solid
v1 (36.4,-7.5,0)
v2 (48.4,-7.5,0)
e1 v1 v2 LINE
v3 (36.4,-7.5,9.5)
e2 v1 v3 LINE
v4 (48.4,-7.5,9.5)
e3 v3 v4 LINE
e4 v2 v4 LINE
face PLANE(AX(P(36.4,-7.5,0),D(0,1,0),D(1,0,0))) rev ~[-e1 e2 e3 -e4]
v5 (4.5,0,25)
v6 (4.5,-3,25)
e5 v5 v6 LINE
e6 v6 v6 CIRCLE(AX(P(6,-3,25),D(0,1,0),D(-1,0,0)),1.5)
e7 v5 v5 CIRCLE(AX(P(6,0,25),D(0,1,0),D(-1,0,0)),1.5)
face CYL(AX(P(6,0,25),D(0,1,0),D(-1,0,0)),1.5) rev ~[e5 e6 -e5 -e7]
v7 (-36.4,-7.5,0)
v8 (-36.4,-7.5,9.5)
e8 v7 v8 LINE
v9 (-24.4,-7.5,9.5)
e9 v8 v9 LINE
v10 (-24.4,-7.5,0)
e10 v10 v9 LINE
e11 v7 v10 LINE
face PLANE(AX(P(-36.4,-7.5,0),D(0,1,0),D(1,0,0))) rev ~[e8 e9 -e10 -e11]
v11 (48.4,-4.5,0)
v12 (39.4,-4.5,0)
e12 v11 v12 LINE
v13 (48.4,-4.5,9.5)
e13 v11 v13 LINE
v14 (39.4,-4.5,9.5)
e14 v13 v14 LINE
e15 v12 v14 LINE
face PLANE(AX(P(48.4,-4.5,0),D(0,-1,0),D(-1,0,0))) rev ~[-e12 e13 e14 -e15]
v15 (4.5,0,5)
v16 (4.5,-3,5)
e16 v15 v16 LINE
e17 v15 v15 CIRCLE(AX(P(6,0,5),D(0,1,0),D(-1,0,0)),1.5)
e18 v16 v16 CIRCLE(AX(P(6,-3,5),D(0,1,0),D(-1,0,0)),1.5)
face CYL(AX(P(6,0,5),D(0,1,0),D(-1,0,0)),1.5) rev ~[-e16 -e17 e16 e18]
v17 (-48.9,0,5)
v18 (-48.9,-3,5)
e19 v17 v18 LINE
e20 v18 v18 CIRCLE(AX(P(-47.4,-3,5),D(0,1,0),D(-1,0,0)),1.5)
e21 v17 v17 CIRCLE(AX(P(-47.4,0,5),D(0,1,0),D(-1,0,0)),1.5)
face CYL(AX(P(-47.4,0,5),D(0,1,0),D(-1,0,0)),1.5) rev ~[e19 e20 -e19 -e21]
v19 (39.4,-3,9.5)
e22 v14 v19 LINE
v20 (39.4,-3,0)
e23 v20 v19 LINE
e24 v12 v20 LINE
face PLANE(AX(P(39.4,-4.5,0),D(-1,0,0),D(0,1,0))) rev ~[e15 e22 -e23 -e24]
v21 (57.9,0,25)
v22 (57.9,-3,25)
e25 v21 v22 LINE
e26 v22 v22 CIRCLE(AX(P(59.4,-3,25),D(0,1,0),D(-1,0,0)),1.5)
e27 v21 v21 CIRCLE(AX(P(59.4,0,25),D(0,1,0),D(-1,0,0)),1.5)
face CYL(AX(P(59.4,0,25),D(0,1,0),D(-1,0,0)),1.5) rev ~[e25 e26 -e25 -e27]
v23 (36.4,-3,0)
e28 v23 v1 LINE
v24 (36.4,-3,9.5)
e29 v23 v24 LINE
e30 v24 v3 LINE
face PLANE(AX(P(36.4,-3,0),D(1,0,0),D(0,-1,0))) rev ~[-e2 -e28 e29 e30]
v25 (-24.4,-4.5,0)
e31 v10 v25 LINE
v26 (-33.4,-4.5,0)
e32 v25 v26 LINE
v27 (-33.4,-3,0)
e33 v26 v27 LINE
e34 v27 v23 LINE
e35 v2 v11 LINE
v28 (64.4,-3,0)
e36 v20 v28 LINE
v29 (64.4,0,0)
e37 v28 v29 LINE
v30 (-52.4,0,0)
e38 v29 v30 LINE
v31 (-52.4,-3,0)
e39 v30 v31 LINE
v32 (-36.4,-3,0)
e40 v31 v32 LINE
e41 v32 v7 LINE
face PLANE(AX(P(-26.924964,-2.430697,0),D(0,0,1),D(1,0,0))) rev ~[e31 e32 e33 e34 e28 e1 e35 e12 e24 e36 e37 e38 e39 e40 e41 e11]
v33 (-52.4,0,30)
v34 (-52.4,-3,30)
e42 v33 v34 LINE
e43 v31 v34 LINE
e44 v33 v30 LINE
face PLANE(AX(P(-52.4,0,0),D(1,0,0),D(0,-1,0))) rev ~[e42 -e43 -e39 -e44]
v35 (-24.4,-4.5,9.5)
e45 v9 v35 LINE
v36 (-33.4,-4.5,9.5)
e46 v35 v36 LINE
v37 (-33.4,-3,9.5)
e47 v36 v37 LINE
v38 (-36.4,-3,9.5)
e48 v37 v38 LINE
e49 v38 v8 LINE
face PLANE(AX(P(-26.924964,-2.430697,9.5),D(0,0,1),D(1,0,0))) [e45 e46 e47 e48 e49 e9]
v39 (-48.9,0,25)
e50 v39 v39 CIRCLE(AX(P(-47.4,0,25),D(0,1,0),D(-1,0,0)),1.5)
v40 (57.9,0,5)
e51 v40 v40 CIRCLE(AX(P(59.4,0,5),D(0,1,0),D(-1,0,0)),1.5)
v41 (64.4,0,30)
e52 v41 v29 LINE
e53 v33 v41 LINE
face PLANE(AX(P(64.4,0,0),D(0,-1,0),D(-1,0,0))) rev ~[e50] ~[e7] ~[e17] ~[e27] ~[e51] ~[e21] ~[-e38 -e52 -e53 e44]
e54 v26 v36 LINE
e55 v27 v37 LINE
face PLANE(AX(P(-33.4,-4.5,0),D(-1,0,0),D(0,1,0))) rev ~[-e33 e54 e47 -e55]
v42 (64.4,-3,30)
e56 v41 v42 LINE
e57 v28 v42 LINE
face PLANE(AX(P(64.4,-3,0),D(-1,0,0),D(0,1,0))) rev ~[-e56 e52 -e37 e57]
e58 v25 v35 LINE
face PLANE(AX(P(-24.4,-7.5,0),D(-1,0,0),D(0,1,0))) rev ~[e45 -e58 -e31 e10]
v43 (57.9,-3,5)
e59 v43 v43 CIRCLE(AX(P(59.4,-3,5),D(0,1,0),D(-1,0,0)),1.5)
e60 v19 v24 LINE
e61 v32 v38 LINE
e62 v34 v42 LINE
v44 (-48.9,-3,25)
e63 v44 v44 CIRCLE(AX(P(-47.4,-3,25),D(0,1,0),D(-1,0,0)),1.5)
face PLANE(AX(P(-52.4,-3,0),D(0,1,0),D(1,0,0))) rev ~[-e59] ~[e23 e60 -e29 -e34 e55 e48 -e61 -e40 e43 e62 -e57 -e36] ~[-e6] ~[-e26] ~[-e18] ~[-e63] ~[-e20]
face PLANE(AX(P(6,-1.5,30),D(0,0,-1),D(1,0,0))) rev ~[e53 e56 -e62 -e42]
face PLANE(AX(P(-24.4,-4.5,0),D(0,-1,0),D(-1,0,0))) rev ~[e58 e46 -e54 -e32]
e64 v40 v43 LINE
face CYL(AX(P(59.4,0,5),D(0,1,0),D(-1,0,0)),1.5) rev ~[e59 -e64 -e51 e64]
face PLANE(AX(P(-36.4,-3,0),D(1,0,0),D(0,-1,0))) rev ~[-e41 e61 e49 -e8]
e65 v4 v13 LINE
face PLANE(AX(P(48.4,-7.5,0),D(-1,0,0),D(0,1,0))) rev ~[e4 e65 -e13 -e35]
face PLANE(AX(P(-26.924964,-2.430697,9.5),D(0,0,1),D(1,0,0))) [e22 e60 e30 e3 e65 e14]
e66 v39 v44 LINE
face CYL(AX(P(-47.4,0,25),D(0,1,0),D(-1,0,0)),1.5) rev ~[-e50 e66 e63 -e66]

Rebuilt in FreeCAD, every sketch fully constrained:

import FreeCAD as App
import Part
import Sketcher
from FreeCAD import Vector

doc = App.newDocument("Part")
params = doc.addObject("Spreadsheet::Sheet", "Params")
for row, (alias, value) in enumerate([
    ("sketch1_width", "16 mm"),
    ("sketch1_width2", "12 mm"),
    ("sketch1_width3", "9 mm"),
    ("sketch1_width4", "25 mm"),
    ("sketch1_height", "3 mm"),
    ("pad1_length", "9.5 mm"),
    ("sketch2_height", "3 mm"),
    ("sketch2_width", "116.8 mm"),
    ("pad2_length", "30 mm"),
    ("sketch3_diameter", "3 mm"),
    ("pocket1_length", "25 mm"),
], start=1):
    params.set(f"A{row}", alias)
    params.set(f"B{row}", "=" + value)
    params.setAlias(f"B{row}", alias)

body = doc.addObject("PartDesign::Body", "Body")

# Sketch on XY plane
sketch1 = body.newObject("Sketcher::SketchObject", "Sketch")
sketch1.AttachmentSupport = (doc.getObject("XY_Plane"), [""])
sketch1.MapMode = "FlatFace"
sketch1.addGeometry([
    Part.LineSegment(Vector(-52.4, 0, 0), Vector(-52.4, -3, 0)),  # 0
    Part.LineSegment(Vector(-52.4, -3, 0), Vector(-36.4, -3, 0)),  # 1
    Part.LineSegment(Vector(-36.4, -3, 0), Vector(-36.4, -7.5, 0)),  # 2
    Part.LineSegment(Vector(-36.4, -7.5, 0), Vector(-24.4, -7.5, 0)),  # 3
    Part.LineSegment(Vector(-24.4, -7.5, 0), Vector(-24.4, -4.5, 0)),  # 4
    Part.LineSegment(Vector(-24.4, -4.5, 0), Vector(-33.4, -4.5, 0)),  # 5
    Part.LineSegment(Vector(-33.4, -4.5, 0), Vector(-33.4, -3, 0)),  # 6
    Part.LineSegment(Vector(-33.4, -3, 0), Vector(36.4, -3, 0)),  # 7
    Part.LineSegment(Vector(36.4, -3, 0), Vector(36.4, -7.5, 0)),  # 8
    Part.LineSegment(Vector(36.4, -7.5, 0), Vector(48.4, -7.5, 0)),  # 9
    Part.LineSegment(Vector(48.4, -7.5, 0), Vector(48.4, -4.5, 0)),  # 10
    Part.LineSegment(Vector(48.4, -4.5, 0), Vector(39.4, -4.5, 0)),  # 11
    Part.LineSegment(Vector(39.4, -4.5, 0), Vector(39.4, -3, 0)),  # 12
    Part.LineSegment(Vector(39.4, -3, 0), Vector(64.4, -3, 0)),  # 13
    Part.LineSegment(Vector(64.4, -3, 0), Vector(64.4, 0, 0)),  # 14
    Part.LineSegment(Vector(64.4, 0, 0), Vector(-52.4, 0, 0)),  # 15
], False)
sketch1.addConstraint([
    Sketcher.Constraint("Coincident", 0, 2, 1, 1),
    Sketcher.Constraint("Coincident", 1, 2, 2, 1),
    Sketcher.Constraint("Coincident", 2, 2, 3, 1),
    Sketcher.Constraint("Coincident", 3, 2, 4, 1),
    Sketcher.Constraint("Coincident", 4, 2, 5, 1),
    Sketcher.Constraint("Coincident", 5, 2, 6, 1),
    Sketcher.Constraint("Coincident", 6, 2, 7, 1),
    Sketcher.Constraint("Coincident", 7, 2, 8, 1),
    Sketcher.Constraint("Coincident", 8, 2, 9, 1),
    Sketcher.Constraint("Coincident", 9, 2, 10, 1),
    Sketcher.Constraint("Coincident", 10, 2, 11, 1),
    Sketcher.Constraint("Coincident", 11, 2, 12, 1),
    Sketcher.Constraint("Coincident", 12, 2, 13, 1),
    Sketcher.Constraint("Coincident", 13, 2, 14, 1),
    Sketcher.Constraint("Coincident", 14, 2, 15, 1),
    Sketcher.Constraint("Coincident", 15, 2, 0, 1),
    Sketcher.Constraint("Vertical", 0),
    Sketcher.Constraint("Horizontal", 1),
    Sketcher.Constraint("Vertical", 2),
    Sketcher.Constraint("Horizontal", 3),
    Sketcher.Constraint("Vertical", 4),
    Sketcher.Constraint("Horizontal", 5),
    Sketcher.Constraint("Vertical", 6),
    Sketcher.Constraint("Horizontal", 7),
    Sketcher.Constraint("Vertical", 8),
    Sketcher.Constraint("Horizontal", 9),
    Sketcher.Constraint("Vertical", 10),
    Sketcher.Constraint("Horizontal", 11),
    Sketcher.Constraint("Vertical", 12),
    Sketcher.Constraint("Horizontal", 13),
    Sketcher.Constraint("Vertical", 14),
    Sketcher.Constraint("Horizontal", 15),
    Sketcher.Constraint("Symmetric", 1, 2, 7, 2, -2),
    Sketcher.Constraint("PointOnObject", 14, 2, -1),
    Sketcher.Constraint("Horizontal", 3, 2, 8, 2),
    Sketcher.Constraint("Horizontal", 5, 2, 10, 2),
    Sketcher.Constraint("Horizontal", 7, 2, 12, 2),
    Sketcher.Constraint("Equal", 3, 9),
    Sketcher.Constraint("Equal", 5, 11),
    Sketcher.Constraint("Equal", 0, 4),
    Sketcher.Constraint("DistanceX", 1, 1, 1, 2, 16.0),
    Sketcher.Constraint("DistanceX", 3, 1, 3, 2, 12.0),
    Sketcher.Constraint("DistanceX", 5, 2, 5, 1, 9.0),
    Sketcher.Constraint("DistanceX", 13, 1, 13, 2, 25.0),
    Sketcher.Constraint("DistanceY", 0, 2, 0, 1, 3.0),
    Sketcher.Constraint("DistanceX", 7, 1, 7, 2, 69.8),
    Sketcher.Constraint("DistanceY", 2, 2, 2, 1, 4.5),
])
sketch1.setExpression("Constraints[40]", "Params.sketch1_width")
sketch1.setExpression("Constraints[41]", "Params.sketch1_width2")
sketch1.setExpression("Constraints[42]", "Params.sketch1_width3")
sketch1.setExpression("Constraints[43]", "Params.sketch1_width4")
sketch1.setExpression("Constraints[44]", "Params.sketch1_height")
pad1 = body.newObject("PartDesign::Pad", "Pad")
pad1.Profile = sketch1
pad1.setExpression("Length", "Params.pad1_length")

# Sketch on XY plane
sketch2 = body.newObject("Sketcher::SketchObject", "Sketch001")
sketch2.AttachmentSupport = (doc.getObject("XY_Plane"), [""])
sketch2.MapMode = "FlatFace"
sketch2.addGeometry([
    Part.LineSegment(Vector(-52.4, -3, 0), Vector(-52.4, 0, 0)),
    Part.LineSegment(Vector(-52.4, 0, 0), Vector(64.4, 0, 0)),
    Part.LineSegment(Vector(64.4, 0, 0), Vector(64.4, -3, 0)),
    Part.LineSegment(Vector(64.4, -3, 0), Vector(-52.4, -3, 0)),
], False)
sketch2.addConstraint([
    Sketcher.Constraint("Coincident", 0, 2, 1, 1),
    Sketcher.Constraint("Coincident", 1, 2, 2, 1),
    Sketcher.Constraint("Coincident", 2, 2, 3, 1),
    Sketcher.Constraint("Coincident", 3, 2, 0, 1),
    Sketcher.Constraint("Vertical", 0),
    Sketcher.Constraint("Horizontal", 1),
    Sketcher.Constraint("Vertical", 2),
    Sketcher.Constraint("Horizontal", 3),
    Sketcher.Constraint("PointOnObject", 0, 2, -1),
    Sketcher.Constraint("DistanceY", 0, 1, 0, 2, 3.0),
    Sketcher.Constraint("DistanceX", 1, 1, 1, 2, 116.8),
    Sketcher.Constraint("DistanceX", 0, 2, -1, 1, 52.4),
])
sketch2.setExpression("Constraints[9]", "Params.sketch2_height")
sketch2.setExpression("Constraints[10]", "Params.sketch2_width")
pad2 = body.newObject("PartDesign::Pad", "Pad001")
pad2.Profile = sketch2
pad2.setExpression("Length", "Params.pad2_length")

# Sketch on XZ plane
sketch3 = body.newObject("Sketcher::SketchObject", "Sketch002")
sketch3.AttachmentSupport = (doc.getObject("XZ_Plane"), [""])
sketch3.MapMode = "FlatFace"
sketch3.addGeometry([
    Part.Circle(Vector(-47.4, 25, 0), Vector(0, 0, 1), 1.5),  # 0
    Part.Circle(Vector(59.4, 25, 0), Vector(0, 0, 1), 1.5),  # 1
    Part.Circle(Vector(59.4, 5, 0), Vector(0, 0, 1), 1.5),  # 2
    Part.Circle(Vector(-47.4, 5, 0), Vector(0, 0, 1), 1.5),  # 3
    Part.Circle(Vector(6, 25, 0), Vector(0, 0, 1), 1.5),  # 4
    Part.Circle(Vector(6, 5, 0), Vector(0, 0, 1), 1.5),  # 5
], False)
sketch3.addConstraint([
    Sketcher.Constraint("Equal", 0, 1),
    Sketcher.Constraint("Equal", 1, 2),
    Sketcher.Constraint("Equal", 2, 3),
    Sketcher.Constraint("Equal", 3, 4),
    Sketcher.Constraint("Equal", 4, 5),
    Sketcher.Constraint("Horizontal", 0, 3, 1, 3),
    Sketcher.Constraint("Horizontal", 2, 3, 3, 3),
    Sketcher.Constraint("Horizontal", 1, 3, 4, 3),
    Sketcher.Constraint("Horizontal", 3, 3, 5, 3),
    Sketcher.Constraint("Vertical", 1, 3, 2, 3),
    Sketcher.Constraint("Vertical", 0, 3, 3, 3),
    Sketcher.Constraint("Vertical", 4, 3, 5, 3),
    Sketcher.Constraint("Diameter", 0, 3.0),
    Sketcher.Constraint("DistanceY", -1, 1, 0, 3, 25.0),
    Sketcher.Constraint("DistanceY", -1, 1, 2, 3, 5.0),
    Sketcher.Constraint("DistanceX", -1, 1, 4, 3, 6.0),
    Sketcher.Constraint("DistanceX", 0, 3, -1, 1, 47.4),
    Sketcher.Constraint("DistanceX", -1, 1, 1, 3, 59.4),
])
sketch3.setExpression("Constraints[12]", "Params.sketch3_diameter")
pocket1 = body.newObject("PartDesign::Pocket", "Pocket")
pocket1.Profile = sketch3
pocket1.setExpression("Length", "Params.pocket1_length")
pocket1.Reversed = True

doc.recompute()
